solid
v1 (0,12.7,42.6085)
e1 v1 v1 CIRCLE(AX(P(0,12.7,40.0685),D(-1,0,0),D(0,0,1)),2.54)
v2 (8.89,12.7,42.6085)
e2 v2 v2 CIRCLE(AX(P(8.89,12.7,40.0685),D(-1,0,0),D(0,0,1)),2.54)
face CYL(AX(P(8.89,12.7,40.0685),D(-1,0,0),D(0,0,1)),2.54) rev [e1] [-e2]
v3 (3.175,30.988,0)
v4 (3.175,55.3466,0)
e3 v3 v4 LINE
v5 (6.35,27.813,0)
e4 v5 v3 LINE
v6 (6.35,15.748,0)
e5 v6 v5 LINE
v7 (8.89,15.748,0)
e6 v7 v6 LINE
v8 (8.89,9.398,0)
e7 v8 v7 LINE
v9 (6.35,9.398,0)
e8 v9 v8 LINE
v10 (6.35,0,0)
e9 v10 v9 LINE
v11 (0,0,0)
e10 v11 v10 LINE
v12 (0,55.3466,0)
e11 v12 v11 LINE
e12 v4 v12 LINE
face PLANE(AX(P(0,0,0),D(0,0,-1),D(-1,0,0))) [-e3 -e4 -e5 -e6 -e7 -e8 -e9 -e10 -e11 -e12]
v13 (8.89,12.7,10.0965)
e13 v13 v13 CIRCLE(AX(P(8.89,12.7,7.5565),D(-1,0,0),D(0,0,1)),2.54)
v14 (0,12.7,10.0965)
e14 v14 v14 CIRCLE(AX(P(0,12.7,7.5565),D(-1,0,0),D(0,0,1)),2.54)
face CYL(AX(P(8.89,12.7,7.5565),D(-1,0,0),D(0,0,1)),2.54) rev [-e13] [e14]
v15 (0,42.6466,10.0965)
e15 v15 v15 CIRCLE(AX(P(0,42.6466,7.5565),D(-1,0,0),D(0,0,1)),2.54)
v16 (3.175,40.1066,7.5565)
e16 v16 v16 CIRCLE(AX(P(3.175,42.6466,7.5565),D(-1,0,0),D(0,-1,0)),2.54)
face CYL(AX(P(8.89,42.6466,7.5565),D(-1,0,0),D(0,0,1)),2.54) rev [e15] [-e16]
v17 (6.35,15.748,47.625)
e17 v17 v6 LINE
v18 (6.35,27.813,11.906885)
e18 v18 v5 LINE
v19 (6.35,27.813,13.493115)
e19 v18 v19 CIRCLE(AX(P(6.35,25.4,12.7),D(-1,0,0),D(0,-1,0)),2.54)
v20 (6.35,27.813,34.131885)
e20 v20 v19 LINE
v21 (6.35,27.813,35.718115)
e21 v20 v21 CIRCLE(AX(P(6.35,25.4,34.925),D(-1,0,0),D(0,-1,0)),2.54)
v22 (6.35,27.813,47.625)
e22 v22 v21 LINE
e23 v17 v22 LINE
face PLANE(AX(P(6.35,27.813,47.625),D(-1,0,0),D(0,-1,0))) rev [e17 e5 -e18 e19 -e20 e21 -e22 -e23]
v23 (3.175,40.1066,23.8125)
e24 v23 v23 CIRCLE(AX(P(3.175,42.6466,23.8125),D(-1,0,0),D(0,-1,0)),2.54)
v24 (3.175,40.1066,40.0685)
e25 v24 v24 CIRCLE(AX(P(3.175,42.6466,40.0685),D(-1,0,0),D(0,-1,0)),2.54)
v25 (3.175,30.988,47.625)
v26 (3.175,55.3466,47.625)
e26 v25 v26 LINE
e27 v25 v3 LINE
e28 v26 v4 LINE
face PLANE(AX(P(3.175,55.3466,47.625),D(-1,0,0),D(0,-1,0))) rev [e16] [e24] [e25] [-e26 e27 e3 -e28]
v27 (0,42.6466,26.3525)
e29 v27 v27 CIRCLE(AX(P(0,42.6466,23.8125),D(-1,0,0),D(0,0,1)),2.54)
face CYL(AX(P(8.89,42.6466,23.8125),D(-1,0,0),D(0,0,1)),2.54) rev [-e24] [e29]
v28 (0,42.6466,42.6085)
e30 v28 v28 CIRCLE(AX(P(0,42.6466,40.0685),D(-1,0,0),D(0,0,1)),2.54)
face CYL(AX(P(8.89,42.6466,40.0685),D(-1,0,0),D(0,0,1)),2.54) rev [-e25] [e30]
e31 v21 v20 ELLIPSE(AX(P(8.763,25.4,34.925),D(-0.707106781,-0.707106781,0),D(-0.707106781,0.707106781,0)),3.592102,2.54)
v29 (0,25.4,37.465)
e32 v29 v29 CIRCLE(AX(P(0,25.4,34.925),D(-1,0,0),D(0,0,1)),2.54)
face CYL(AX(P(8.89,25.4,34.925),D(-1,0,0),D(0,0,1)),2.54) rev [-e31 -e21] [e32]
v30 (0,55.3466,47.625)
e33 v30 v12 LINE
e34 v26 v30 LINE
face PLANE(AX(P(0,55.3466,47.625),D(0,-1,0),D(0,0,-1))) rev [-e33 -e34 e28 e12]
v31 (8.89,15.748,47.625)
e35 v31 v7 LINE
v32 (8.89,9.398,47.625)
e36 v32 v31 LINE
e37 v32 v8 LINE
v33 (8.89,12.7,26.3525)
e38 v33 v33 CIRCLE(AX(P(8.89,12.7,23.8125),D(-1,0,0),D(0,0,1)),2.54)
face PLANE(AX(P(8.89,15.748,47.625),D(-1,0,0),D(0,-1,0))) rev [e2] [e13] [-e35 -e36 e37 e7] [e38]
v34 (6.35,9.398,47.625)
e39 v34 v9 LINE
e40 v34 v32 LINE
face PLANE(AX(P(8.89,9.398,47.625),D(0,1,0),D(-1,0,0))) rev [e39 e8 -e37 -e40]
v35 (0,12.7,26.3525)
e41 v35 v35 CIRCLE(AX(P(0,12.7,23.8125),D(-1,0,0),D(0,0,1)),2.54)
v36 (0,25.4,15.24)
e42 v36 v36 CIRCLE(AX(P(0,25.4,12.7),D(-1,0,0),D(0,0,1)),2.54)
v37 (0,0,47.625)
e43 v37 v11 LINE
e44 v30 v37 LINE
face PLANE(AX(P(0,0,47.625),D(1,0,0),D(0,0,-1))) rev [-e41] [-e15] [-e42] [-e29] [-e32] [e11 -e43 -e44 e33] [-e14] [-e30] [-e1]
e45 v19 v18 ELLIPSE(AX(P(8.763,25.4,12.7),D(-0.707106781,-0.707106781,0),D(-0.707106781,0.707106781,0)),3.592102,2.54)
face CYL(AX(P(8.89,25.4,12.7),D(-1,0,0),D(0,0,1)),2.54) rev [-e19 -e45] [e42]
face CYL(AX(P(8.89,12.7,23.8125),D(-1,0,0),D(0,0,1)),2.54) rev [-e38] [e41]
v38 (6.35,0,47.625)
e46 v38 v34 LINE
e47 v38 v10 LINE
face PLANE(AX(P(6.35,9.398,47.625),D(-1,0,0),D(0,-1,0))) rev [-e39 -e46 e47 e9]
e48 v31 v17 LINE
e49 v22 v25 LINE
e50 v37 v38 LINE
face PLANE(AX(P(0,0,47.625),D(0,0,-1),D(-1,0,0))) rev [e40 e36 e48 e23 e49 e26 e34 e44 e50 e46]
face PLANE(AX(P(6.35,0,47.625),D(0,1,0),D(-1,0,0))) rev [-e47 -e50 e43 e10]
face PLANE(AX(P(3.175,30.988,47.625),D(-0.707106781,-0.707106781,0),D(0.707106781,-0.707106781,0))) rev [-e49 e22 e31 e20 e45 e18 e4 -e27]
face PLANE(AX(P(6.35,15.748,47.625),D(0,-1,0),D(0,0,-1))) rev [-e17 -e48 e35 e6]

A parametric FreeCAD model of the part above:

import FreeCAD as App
import Part
import Sketcher
from FreeCAD import Vector
Q = App.Units.Quantity

doc = App.newDocument("Part")
params = doc.addObject("Spreadsheet::Sheet", "Params")
for row, (alias, value) in enumerate([
    ("sketch1_width", "0.1 in"),
    ("sketch1_width2", "0.25 in"),
    ("sketch1_height", "0.37 in"),
    ("sketch1_width3", "0.125 in"),
    ("sketch1_height2", "2.179 in"),
    ("pad1_length", "1.875 in"),
    ("sketch2_diameter", "0.2 in"),
], start=1):
    params.set(f"A{row}", alias)
    params.set(f"B{row}", "=" + value)
    params.setAlias(f"B{row}", alias)

body = doc.addObject("PartDesign::Body", "Body")

sketch1 = body.newObject("Sketcher::SketchObject", "Sketch")
sketch1.AttachmentSupport = (doc.getObject("XY_Plane"), [""])
sketch1.MapMode = "FlatFace"
sketch1.addGeometry(Part.LineSegment(Vector(0, 55.3, 0), Vector(0, 0, 0)), False)
sketch1.addGeometry(Part.LineSegment(Vector(0, 0, 0), Vector(6.3, 0, 0)), False)
sketch1.addGeometry(Part.LineSegment(Vector(6.3, 0, 0), Vector(6.3, 9.4, 0)), False)
sketch1.addGeometry(Part.LineSegment(Vector(6.3, 9.4, 0), Vector(8.9, 9.4, 0)), False)
sketch1.addGeometry(Part.LineSegment(Vector(8.9, 9.4, 0), Vector(8.9, 15.7, 0)), False)
sketch1.addGeometry(Part.LineSegment(Vector(8.9, 15.7, 0), Vector(6.3, 15.7, 0)), False)
sketch1.addGeometry(Part.LineSegment(Vector(6.3, 15.7, 0), Vector(6.3, 27.8, 0)), False)
sketch1.addGeometry(Part.LineSegment(Vector(6.3, 27.8, 0), Vector(3.2, 31, 0)), False)
sketch1.addGeometry(Part.LineSegment(Vector(3.2, 31, 0), Vector(3.2, 55.3, 0)), False)
sketch1.addGeometry(Part.LineSegment(Vector(3.2, 55.3, 0), Vector(0, 55.3, 0)), False)
sketch1.addConstraint(Sketcher.Constraint("Coincident", 0, 2, 1, 1))
sketch1.addConstraint(Sketcher.Constraint("Coincident", 1, 2, 2, 1))
sketch1.addConstraint(Sketcher.Constraint("Coincident", 2, 2, 3, 1))
sketch1.addConstraint(Sketcher.Constraint("Coincident", 3, 2, 4, 1))
sketch1.addConstraint(Sketcher.Constraint("Coincident", 4, 2, 5, 1))
sketch1.addConstraint(Sketcher.Constraint("Coincident", 5, 2, 6, 1))
sketch1.addConstraint(Sketcher.Constraint("Coincident", 6, 2, 7, 1))
sketch1.addConstraint(Sketcher.Constraint("Coincident", 7, 2, 8, 1))
sketch1.addConstraint(Sketcher.Constraint("Coincident", 8, 2, 9, 1))
sketch1.addConstraint(Sketcher.Constraint("Coincident", 9, 2, 0, 1))
sketch1.addConstraint(Sketcher.Constraint("Vertical", 0))
sketch1.addConstraint(Sketcher.Constraint("Horizontal", 1))
sketch1.addConstraint(Sketcher.Constraint("Vertical", 2))
sketch1.addConstraint(Sketcher.Constraint("Horizontal", 3))
sketch1.addConstraint(Sketcher.Constraint("Vertical", 4))
sketch1.addConstraint(Sketcher.Constraint("Horizontal", 5))
sketch1.addConstraint(Sketcher.Constraint("Vertical", 6))
sketch1.addConstraint(Sketcher.Constraint("Vertical", 8))
sketch1.addConstraint(Sketcher.Constraint("Horizontal", 9))
sketch1.addConstraint(Sketcher.Constraint("Coincident", 0, 2, -1, 1))
sketch1.addConstraint(Sketcher.Constraint("Vertical", 2, 2, 5, 2))
sketch1.addConstraint(Sketcher.Constraint("Equal", 1, 4))
sketch1.addConstraint(Sketcher.Constraint("DistanceX", 3, 1, 3, 2, Q("0.1 in")))
sketch1.addConstraint(Sketcher.Constraint("Angle", 7, Q("135 deg")))
sketch1.addConstraint(Sketcher.Constraint("DistanceX", 1, 1, 1, 2, Q("0.25 in")))
sketch1.addConstraint(Sketcher.Constraint("DistanceY", 2, 1, 2, 2, Q("0.37 in")))
sketch1.addConstraint(Sketcher.Constraint("DistanceY", 5, 2, 7, 2, Q("0.6 in")))
sketch1.addConstraint(Sketcher.Constraint("DistanceX", 9, 2, 9, 1, Q("0.125 in")))
sketch1.addConstraint(Sketcher.Constraint("DistanceY", 0, 2, 0, 1, Q("2.179 in")))
sketch1.setExpression("Constraints[22]", "Params.sketch1_width")
sketch1.setExpression("Constraints[24]", "Params.sketch1_width2")
sketch1.setExpression("Constraints[25]", "Params.sketch1_height")
sketch1.setExpression("Constraints[27]", "Params.sketch1_width3")
sketch1.setExpression("Constraints[28]", "Params.sketch1_height2")
pad1 = body.newObject("PartDesign::Pad", "Pad")
pad1.Profile = sketch1
pad1.setExpression("Length", "Params.pad1_length")

sketch2 = body.newObject("Sketcher::SketchObject", "Sketch001")
sketch2.AttachmentSupport = (doc.getObject("YZ_Plane"), [""])
sketch2.MapMode = "FlatFace"
sketch2.addGeometry(Part.Circle(Vector(12.7, 40.1, 0), Vector(0, 0, 1), 2.5), False)
sketch2.addGeometry(Part.Circle(Vector(12.7, 7.6, 0), Vector(0, 0, 1), 2.5), False)
sketch2.addGeometry(Part.Circle(Vector(25.4, 12.7, 0), Vector(0, 0, 1), 2.5), False)
sketch2.addGeometry(Part.Circle(Vector(25.4, 34.9, 0), Vector(0, 0, 1), 2.5), False)
sketch2.addGeometry(Part.Circle(Vector(42.6, 7.6, 0), Vector(0, 0, 1), 2.5), False)
sketch2.addGeometry(Part.Circle(Vector(42.6, 40.1, 0), Vector(0, 0, 1), 2.5), False)
sketch2.addGeometry(Part.Circle(Vector(12.7, 23.8, 0), Vector(0, 0, 1), 2.5), False)
sketch2.addGeometry(Part.Circle(Vector(42.6, 23.8, 0), Vector(0, 0, 1), 2.5), False)
sketch2.addConstraint(Sketcher.Constraint("Equal", 0, 1))
sketch2.addConstraint(Sketcher.Constraint("Equal", 1, 2))
sketch2.addConstraint(Sketcher.Constraint("Equal", 2, 3))
sketch2.addConstraint(Sketcher.Constraint("Equal", 3, 4))
sketch2.addConstraint(Sketcher.Constraint("Equal", 4, 5))
sketch2.addConstraint(Sketcher.Constraint("Equal", 5, 6))
sketch2.addConstraint(Sketcher.Constraint("Equal", 6, 7))
sketch2.addConstraint(Sketcher.Constraint("Horizontal", 1, 3, 4, 3))
sketch2.addConstraint(Sketcher.Constraint("Horizontal", 0, 3, 5, 3))
sketch2.addConstraint(Sketcher.Constraint("Horizontal", 6, 3, 7, 3))
sketch2.addConstraint(Sketcher.Constraint("Vertical", 0, 3, 1, 3))
sketch2.addConstraint(Sketcher.Constraint("Vertical", 2, 3, 3, 3))
sketch2.addConstraint(Sketcher.Constraint("Vertical", 4, 3, 5, 3))
sketch2.addConstraint(Sketcher.Constraint("Vertical", 1, 3, 6, 3))
sketch2.addConstraint(Sketcher.Constraint("Vertical", 5, 3, 7, 3))
sketch2.addConstraint(Sketcher.Constraint("Diameter", 0, Q("0.2 in")))
sketch2.addConstraint(Sketcher.Constraint("DistanceX", -1, 1, 2, 3, Q("1 in")))
sketch2.addConstraint(Sketcher.Constraint("DistanceX", -1, 1, 0, 3, Q("0.5 in")))
sketch2.addConstraint(Sketcher.Constraint("DistanceY", -1, 1, 2, 3, Q("0.5 in")))
sketch2.addConstraint(Sketcher.Constraint("DistanceY", 1, 3, 0, 3, Q("1.28 in")))
sketch2.addConstraint(Sketcher.Constraint("DistanceY", 6, 3, 0, 3, Q("0.64 in")))
sketch2.addConstraint(Sketcher.Constraint("DistanceY", -1, 1, 3, 3, Q("1.375 in")))
sketch2.addConstraint(Sketcher.Constraint("DistanceX", -1, 1, 4, 3, Q("1.679 in")))
sketch2.addConstraint(Sketcher.Constraint("DistanceY", -1, 1, 6, 3, Q("0.9375 in")))
sketch2.setExpression("Constraints[15]", "Params.sketch2_diameter")
pocket1 = body.newObject("PartDesign::Pocket", "Pocket")
pocket1.Profile = sketch2
pocket1.Type = "ThroughAll"
pocket1.Reversed = True

doc.recompute()
